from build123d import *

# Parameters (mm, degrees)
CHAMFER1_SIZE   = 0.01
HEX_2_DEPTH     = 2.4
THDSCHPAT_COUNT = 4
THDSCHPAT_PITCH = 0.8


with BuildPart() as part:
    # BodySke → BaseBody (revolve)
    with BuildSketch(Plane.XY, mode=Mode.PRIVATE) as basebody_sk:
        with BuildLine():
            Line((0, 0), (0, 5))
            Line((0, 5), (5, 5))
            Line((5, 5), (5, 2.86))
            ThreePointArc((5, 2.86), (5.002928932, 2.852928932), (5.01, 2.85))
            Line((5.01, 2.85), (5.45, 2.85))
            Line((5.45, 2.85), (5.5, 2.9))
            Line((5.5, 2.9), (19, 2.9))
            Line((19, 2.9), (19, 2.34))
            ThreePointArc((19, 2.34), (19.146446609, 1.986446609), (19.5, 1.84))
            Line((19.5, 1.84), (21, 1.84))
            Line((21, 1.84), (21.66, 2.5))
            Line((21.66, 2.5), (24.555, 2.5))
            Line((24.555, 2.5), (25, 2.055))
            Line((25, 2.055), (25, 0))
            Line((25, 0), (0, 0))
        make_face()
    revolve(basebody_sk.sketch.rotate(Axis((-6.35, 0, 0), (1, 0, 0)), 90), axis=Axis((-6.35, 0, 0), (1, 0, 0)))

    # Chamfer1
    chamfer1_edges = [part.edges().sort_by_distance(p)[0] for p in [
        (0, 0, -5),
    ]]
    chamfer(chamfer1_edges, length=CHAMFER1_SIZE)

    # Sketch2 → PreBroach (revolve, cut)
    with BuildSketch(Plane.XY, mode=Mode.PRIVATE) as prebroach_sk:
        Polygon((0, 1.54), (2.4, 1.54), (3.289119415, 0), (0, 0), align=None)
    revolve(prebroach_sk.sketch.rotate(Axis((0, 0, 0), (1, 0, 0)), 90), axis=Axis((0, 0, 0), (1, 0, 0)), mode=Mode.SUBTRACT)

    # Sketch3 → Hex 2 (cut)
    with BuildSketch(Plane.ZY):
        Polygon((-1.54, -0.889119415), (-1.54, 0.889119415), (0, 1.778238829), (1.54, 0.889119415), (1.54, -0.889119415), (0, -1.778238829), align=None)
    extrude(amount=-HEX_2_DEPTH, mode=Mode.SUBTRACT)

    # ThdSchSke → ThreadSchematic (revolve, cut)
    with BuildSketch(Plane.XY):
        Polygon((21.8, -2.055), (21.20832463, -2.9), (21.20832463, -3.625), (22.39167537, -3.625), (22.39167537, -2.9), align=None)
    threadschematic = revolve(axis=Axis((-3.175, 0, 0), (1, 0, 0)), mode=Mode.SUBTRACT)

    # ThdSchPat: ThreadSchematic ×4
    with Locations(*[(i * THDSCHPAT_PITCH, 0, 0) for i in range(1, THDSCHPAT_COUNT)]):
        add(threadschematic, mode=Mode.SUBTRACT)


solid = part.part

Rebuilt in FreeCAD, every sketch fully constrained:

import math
import FreeCAD as App
import Part
import Sketcher

V = App.Vector
Q = App.Units.Quantity


def edges_at(feature, points):
    """Names of the edges that pass closest to the given points."""
    edges = feature.Shape.Edges
    near = lambda p: min(range(len(edges)), key=lambda i: edges[i].distToShape(Part.Vertex(*p))[0])
    return sorted({f"Edge{near(p) + 1}" for p in points})

doc = App.newDocument("Part")
body = doc.addObject("PartDesign::Body", "Body")

sketch1 = body.newObject("Sketcher::SketchObject", "Sketch")
sketch1.AttachmentSupport = (doc.getObject("XY_Plane"), [""])
sketch1.MapMode = "FlatFace"
sketch1.addGeometry([
    Part.LineSegment(V(0, 5, 0), V(0, 0, 0)),
    Part.LineSegment(V(0, 0, 0), V(25, 0, 0)),
    Part.LineSegment(V(25, 0, 0), V(25, 2.055, 0)),
    Part.LineSegment(V(25, 2.055, 0), V(24.555, 2.5, 0)),
    Part.LineSegment(V(24.555, 2.5, 0), V(21.66, 2.5, 0)),
    Part.LineSegment(V(21.66, 2.5, 0), V(21, 1.84, 0)),
    Part.LineSegment(V(21, 1.84, 0), V(19.5, 1.84, 0)),
    Part.ArcOfCircle(Part.Circle(V(19.5, 2.34, 0), V(0, 0, 1), 0.5), math.radians(180), math.radians(270)),
    Part.LineSegment(V(19, 2.34, 0), V(19, 2.9, 0)),
    Part.LineSegment(V(19, 2.9, 0), V(5.5, 2.9, 0)),
    Part.LineSegment(V(5.5, 2.9, 0), V(5.45, 2.85, 0)),
    Part.LineSegment(V(5.45, 2.85, 0), V(5.01, 2.85, 0)),
    Part.ArcOfCircle(Part.Circle(V(5.01, 2.86, 0), V(0, 0, 1), 0.01), math.radians(180), math.radians(270)),
    Part.LineSegment(V(5, 2.86, 0), V(5, 5, 0)),
    Part.LineSegment(V(5, 5, 0), V(0, 5, 0)),
], False)
sketch1.addConstraint([
    Sketcher.Constraint("Coincident", 0, 2, 1, 1),
    Sketcher.Constraint("Coincident", 1, 2, 2, 1),
    Sketcher.Constraint("Coincident", 2, 2, 3, 1),
    Sketcher.Constraint("Coincident", 3, 2, 4, 1),
    Sketcher.Constraint("Coincident", 4, 2, 5, 1),
    Sketcher.Constraint("Coincident", 5, 2, 6, 1),
    Sketcher.Constraint("Tangent", 6, 2, 7, 2),
    Sketcher.Constraint("Tangent", 7, 1, 8, 1),
    Sketcher.Constraint("Coincident", 8, 2, 9, 1),
    Sketcher.Constraint("Coincident", 9, 2, 10, 1),
    Sketcher.Constraint("Coincident", 10, 2, 11, 1),
    Sketcher.Constraint("Tangent", 11, 2, 12, 2),
    Sketcher.Constraint("Tangent", 12, 1, 13, 1),
    Sketcher.Constraint("Coincident", 13, 2, 14, 1),
    Sketcher.Constraint("Coincident", 14, 2, 0, 1),
    Sketcher.Constraint("Vertical", 0),
    Sketcher.Constraint("Horizontal", 1),
    Sketcher.Constraint("Vertical", 2),
    Sketcher.Constraint("Horizontal", 4),
    Sketcher.Constraint("Horizontal", 6),
    Sketcher.Constraint("Vertical", 8),
    Sketcher.Constraint("Horizontal", 9),
    Sketcher.Constraint("Horizontal", 11),
    Sketcher.Constraint("Vertical", 13),
    Sketcher.Constraint("Horizontal", 14),
    Sketcher.Constraint("Coincident", 0, 2, -1, 1),
    Sketcher.Constraint("Perpendicular", 3, 5),
    Sketcher.Constraint("Parallel", 5, 10),
    Sketcher.Constraint("Equal", 14, 0),
    Sketcher.Constraint("Radius", 7, Q("0.5 mm")),
    Sketcher.Constraint("DistanceX", 1, 1, 1, 2, Q("25 mm")),
    Sketcher.Constraint("DistanceX", 14, 2, 14, 1, Q("5 mm")),
    Sketcher.Constraint("Angle", 3, Q("135 deg")),
    Sketcher.Constraint("Radius", 12, Q("0.01 mm")),
    Sketcher.Constraint("DistanceX", 6, 2, 6, 1, Q("1.5 mm")),
    Sketcher.Constraint("DistanceX", 9, 2, 9, 1, Q("13.5 mm")),
    Sketcher.Constraint("DistanceX", -1, 1, 5, 2, Q("21 mm")),
    Sketcher.Constraint("DistanceX", 11, 2, 11, 1, Q("0.44 mm")),
    Sketcher.Constraint("DistanceY", 8, 1, 8, 2, Q("0.56 mm")),
    Sketcher.Constraint("DistanceY", 13, 1, 13, 2, Q("2.14 mm")),
    Sketcher.Constraint("DistanceY", -1, 1, 3, 2, Q("2.5 mm")),
    Sketcher.Constraint("DistanceX", 4, 2, 4, 1, Q("2.895 mm")),
])
revolution = body.newObject("PartDesign::Revolution", "Revolution")
revolution.Profile = sketch1
revolution.ReferenceAxis = (sketch1, ["H_Axis"])
revolution.Angle = 360
doc.recompute()

chamfer = body.newObject("PartDesign::Chamfer", "Chamfer")
chamfer.Base = (revolution, edges_at(revolution, [(0, 0, -5)]))
chamfer.Size = 0.01

sketch2 = body.newObject("Sketcher::SketchObject", "Sketch001")
sketch2.AttachmentSupport = (doc.getObject("XY_Plane"), [""])
sketch2.MapMode = "FlatFace"
sketch2.addGeometry([
    Part.LineSegment(V(2.4, 1.5, 0), V(0, 1.5, 0)),
    Part.LineSegment(V(0, 1.5, 0), V(0, 0, 0)),
    Part.LineSegment(V(0, 0, 0), V(3.3, 0, 0)),
    Part.LineSegment(V(3.3, 0, 0), V(2.4, 1.5, 0)),
], False)
sketch2.addConstraint([
    Sketcher.Constraint("Coincident", 0, 2, 1, 1),
    Sketcher.Constraint("Coincident", 1, 2, 2, 1),
    Sketcher.Constraint("Coincident", 2, 2, 3, 1),
    Sketcher.Constraint("Coincident", 3, 2, 0, 1),
    Sketcher.Constraint("Horizontal", 0),
    Sketcher.Constraint("Vertical", 1),
    Sketcher.Constraint("Horizontal", 2),
    Sketcher.Constraint("Coincident", 1, 2, -1, 1),
    Sketcher.Constraint("Angle", 3, Q("120 deg")),
    Sketcher.Constraint("DistanceX", 0, 2, 0, 1, Q("2.4 mm")),
    Sketcher.Constraint("DistanceY", 1, 2, 1, 1, Q("1.54 mm")),
])
groove = body.newObject("PartDesign::Groove", "Groove")
groove.Profile = sketch2
groove.ReferenceAxis = (sketch2, ["H_Axis"])
groove.Angle = 360

sketch3 = body.newObject("Sketcher::SketchObject", "Sketch002")
sketch3.AttachmentSupport = (doc.getObject("YZ_Plane"), [""])
sketch3.MapMode = "FlatFace"
sketch3.addGeometry([
    Part.LineSegment(V(0.9, -1.5, 0), V(-0.9, -1.5, 0)),
    Part.LineSegment(V(-0.9, -1.5, 0), V(-1.8, 0, 0)),
    Part.LineSegment(V(-1.8, 0, 0), V(-0.9, 1.5, 0)),
    Part.LineSegment(V(-0.9, 1.5, 0), V(0.9, 1.5, 0)),
    Part.LineSegment(V(0.9, 1.5, 0), V(1.8, 0, 0)),
    Part.LineSegment(V(1.8, 0, 0), V(0.9, -1.5, 0)),
], False)
sketch3.addConstraint([
    Sketcher.Constraint("Coincident", 0, 2, 1, 1),
    Sketcher.Constraint("Coincident", 1, 2, 2, 1),
    Sketcher.Constraint("Coincident", 2, 2, 3, 1),
    Sketcher.Constraint("Coincident", 3, 2, 4, 1),
    Sketcher.Constraint("Coincident", 4, 2, 5, 1),
    Sketcher.Constraint("Coincident", 5, 2, 0, 1),
    Sketcher.Constraint("Horizontal", 0),
    Sketcher.Constraint("Horizontal", 3),
    Sketcher.Constraint("Symmetric", 0, 2, 3, 2, -1, 1),
    Sketcher.Constraint("Symmetric", 1, 2, 4, 2, -1, 1),
    Sketcher.Constraint("PointOnObject", 1, 2, -1),
    Sketcher.Constraint("Parallel", 2, 5),
    Sketcher.Constraint("Vertical", 0, 2, 2, 2),
    Sketcher.Constraint("Angle", 1, Q("120 deg")),
    Sketcher.Constraint("DistanceY", 0, 2, -1, 1, Q("1.54 mm")),
    Sketcher.Constraint("DistanceX", 0, 2, 0, 1, Q("1.778239 mm")),
])
pocket1 = body.newObject("PartDesign::Pocket", "Pocket")
pocket1.Profile = sketch3
pocket1.Length = 2.4
pocket1.Reversed = True

sketch4 = body.newObject("Sketcher::SketchObject", "Sketch003")
sketch4.AttachmentSupport = (doc.getObject("XY_Plane"), [""])
sketch4.MapMode = "FlatFace"
sketch4.addGeometry([
    Part.LineSegment(V(21.8, -2.1, 0), V(21.2, -2.9, 0)),
    Part.LineSegment(V(21.2, -2.9, 0), V(21.2, -3.6, 0)),
    Part.LineSegment(V(21.2, -3.6, 0), V(22.4, -3.6, 0)),
    Part.LineSegment(V(22.4, -3.6, 0), V(22.4, -2.9, 0)),
    Part.LineSegment(V(22.4, -2.9, 0), V(21.8, -2.1, 0)),
], False)
sketch4.addConstraint([
    Sketcher.Constraint("Coincident", 0, 2, 1, 1),
    Sketcher.Constraint("Coincident", 1, 2, 2, 1),
    Sketcher.Constraint("Coincident", 2, 2, 3, 1),
    Sketcher.Constraint("Coincident", 3, 2, 4, 1),
    Sketcher.Constraint("Coincident", 4, 2, 0, 1),
    Sketcher.Constraint("Vertical", 1),
    Sketcher.Constraint("Horizontal", 2),
    Sketcher.Constraint("Vertical", 3),
    Sketcher.Constraint("Horizontal", 0, 2, 3, 2),
    Sketcher.Constraint("Equal", 0, 4),
    Sketcher.Constraint("Angle", 0, Q("-125 deg")),
    Sketcher.Constraint("DistanceY", 0, 2, -1, 1, Q("2.9 mm")),
    Sketcher.Constraint("DistanceX", -1, 1, 4, 2, Q("21.8 mm")),
    Sketcher.Constraint("DistanceY", 1, 2, 1, 1, Q("0.725 mm")),
    Sketcher.Constraint("DistanceY", 1, 2, 4, 2, Q("1.57 mm")),
])
groove2 = body.newObject("PartDesign::Groove", "Groove001")
groove2.Profile = sketch4
groove2.ReferenceAxis = (sketch4, ["H_Axis"])
groove2.Angle = 360
doc.recompute()

linearpattern = body.newObject("PartDesign::LinearPattern", "LinearPattern")
linearpattern.Originals = [groove2]
linearpattern.Direction = (doc.getObject("X_Axis"), [""])
linearpattern.Mode = "offset"
linearpattern.Offset = 0.8
linearpattern.Occurrences = 4
body.Tip = linearpattern

doc.recompute()
